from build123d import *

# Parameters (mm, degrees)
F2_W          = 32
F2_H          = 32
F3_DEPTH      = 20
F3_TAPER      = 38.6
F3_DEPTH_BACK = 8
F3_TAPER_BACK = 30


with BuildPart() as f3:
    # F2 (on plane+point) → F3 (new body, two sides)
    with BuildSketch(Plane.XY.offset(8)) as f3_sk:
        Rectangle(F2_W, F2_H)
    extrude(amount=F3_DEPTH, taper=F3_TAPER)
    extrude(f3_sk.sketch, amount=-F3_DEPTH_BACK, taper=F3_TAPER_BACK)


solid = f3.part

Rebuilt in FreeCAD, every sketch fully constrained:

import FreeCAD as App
import Part
import Sketcher

V = App.Vector
Q = App.Units.Quantity


def add_polygon(sketch, points):
    """Adds a closed chain of lines whose ends are joined by coincident constraints."""
    first, n = sketch.GeometryCount, len(points)
    for a, b in zip(points, points[1:] + points[:1]):
        sketch.addGeometry(Part.LineSegment(App.Vector(*a, 0), App.Vector(*b, 0)), False)
    for i in range(n):
        sketch.addConstraint(Sketcher.Constraint("Coincident", first + i, 2, first + (i + 1) % n, 1))

doc = App.newDocument("Part")
body = doc.addObject("PartDesign::Body", "Body")

# Sketch on XY plane
sketch1 = body.newObject("Sketcher::SketchObject", "Sketch")
sketch1.AttachmentSupport = (doc.getObject("XY_Plane"), [""])
sketch1.MapMode = "FlatFace"
sketch1.AttachmentOffset = App.Placement(V(0, 0, 8), App.Rotation())
add_polygon(sketch1, [(-16, 16), (-16, -16), (16, -16), (16, 16)])  # lines 0-3
sketch1.addConstraint(Sketcher.Constraint("Vertical", 0))
sketch1.addConstraint(Sketcher.Constraint("Horizontal", 1))
sketch1.addConstraint(Sketcher.Constraint("Vertical", 2))
sketch1.addConstraint(Sketcher.Constraint("Horizontal", 3))
sketch1.addConstraint(Sketcher.Constraint("Symmetric", 0, 2, 2, 2, -1, 1))
sketch1.addConstraint(Sketcher.Constraint("Equal", 3, 0))
sketch1.addConstraint(Sketcher.Constraint("DistanceX", 1, 1, 1, 2, Q("32 mm")))
pad1 = body.newObject("PartDesign::Pad", "Pad")
pad1.Profile = sketch1
pad1.Length = 20
pad1.TaperAngle = -38.6
pad2 = body.newObject("PartDesign::Pad", "Pad001")
pad2.Profile = sketch1
pad2.Length = 8
pad2.Reversed = True
pad2.TaperAngle = -30

doc.recompute()
